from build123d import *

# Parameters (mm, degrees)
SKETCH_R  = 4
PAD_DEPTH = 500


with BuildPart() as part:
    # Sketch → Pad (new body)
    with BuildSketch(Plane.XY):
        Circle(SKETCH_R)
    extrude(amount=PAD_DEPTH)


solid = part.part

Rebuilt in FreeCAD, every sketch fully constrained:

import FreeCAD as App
import Part
import Sketcher

V = App.Vector
Q = App.Units.Quantity

doc = App.newDocument("Part")
body = doc.addObject("PartDesign::Body", "Body")

sketch1 = body.newObject("Sketcher::SketchObject", "Sketch")
sketch1.AttachmentSupport = (doc.getObject("XY_Plane"), [""])
sketch1.MapMode = "FlatFace"
sketch1.addGeometry(Part.Circle(V(0, 0, 0), V(0, 0, 1), 4), False)
sketch1.addConstraint(Sketcher.Constraint("Coincident", 0, 3, -1, 1))
sketch1.addConstraint(Sketcher.Constraint("Diameter", 0, Q("8 mm")))
pad1 = body.newObject("PartDesign::Pad", "Pad")
pad1.Profile = sketch1
pad1.Length = 500

doc.recompute()
